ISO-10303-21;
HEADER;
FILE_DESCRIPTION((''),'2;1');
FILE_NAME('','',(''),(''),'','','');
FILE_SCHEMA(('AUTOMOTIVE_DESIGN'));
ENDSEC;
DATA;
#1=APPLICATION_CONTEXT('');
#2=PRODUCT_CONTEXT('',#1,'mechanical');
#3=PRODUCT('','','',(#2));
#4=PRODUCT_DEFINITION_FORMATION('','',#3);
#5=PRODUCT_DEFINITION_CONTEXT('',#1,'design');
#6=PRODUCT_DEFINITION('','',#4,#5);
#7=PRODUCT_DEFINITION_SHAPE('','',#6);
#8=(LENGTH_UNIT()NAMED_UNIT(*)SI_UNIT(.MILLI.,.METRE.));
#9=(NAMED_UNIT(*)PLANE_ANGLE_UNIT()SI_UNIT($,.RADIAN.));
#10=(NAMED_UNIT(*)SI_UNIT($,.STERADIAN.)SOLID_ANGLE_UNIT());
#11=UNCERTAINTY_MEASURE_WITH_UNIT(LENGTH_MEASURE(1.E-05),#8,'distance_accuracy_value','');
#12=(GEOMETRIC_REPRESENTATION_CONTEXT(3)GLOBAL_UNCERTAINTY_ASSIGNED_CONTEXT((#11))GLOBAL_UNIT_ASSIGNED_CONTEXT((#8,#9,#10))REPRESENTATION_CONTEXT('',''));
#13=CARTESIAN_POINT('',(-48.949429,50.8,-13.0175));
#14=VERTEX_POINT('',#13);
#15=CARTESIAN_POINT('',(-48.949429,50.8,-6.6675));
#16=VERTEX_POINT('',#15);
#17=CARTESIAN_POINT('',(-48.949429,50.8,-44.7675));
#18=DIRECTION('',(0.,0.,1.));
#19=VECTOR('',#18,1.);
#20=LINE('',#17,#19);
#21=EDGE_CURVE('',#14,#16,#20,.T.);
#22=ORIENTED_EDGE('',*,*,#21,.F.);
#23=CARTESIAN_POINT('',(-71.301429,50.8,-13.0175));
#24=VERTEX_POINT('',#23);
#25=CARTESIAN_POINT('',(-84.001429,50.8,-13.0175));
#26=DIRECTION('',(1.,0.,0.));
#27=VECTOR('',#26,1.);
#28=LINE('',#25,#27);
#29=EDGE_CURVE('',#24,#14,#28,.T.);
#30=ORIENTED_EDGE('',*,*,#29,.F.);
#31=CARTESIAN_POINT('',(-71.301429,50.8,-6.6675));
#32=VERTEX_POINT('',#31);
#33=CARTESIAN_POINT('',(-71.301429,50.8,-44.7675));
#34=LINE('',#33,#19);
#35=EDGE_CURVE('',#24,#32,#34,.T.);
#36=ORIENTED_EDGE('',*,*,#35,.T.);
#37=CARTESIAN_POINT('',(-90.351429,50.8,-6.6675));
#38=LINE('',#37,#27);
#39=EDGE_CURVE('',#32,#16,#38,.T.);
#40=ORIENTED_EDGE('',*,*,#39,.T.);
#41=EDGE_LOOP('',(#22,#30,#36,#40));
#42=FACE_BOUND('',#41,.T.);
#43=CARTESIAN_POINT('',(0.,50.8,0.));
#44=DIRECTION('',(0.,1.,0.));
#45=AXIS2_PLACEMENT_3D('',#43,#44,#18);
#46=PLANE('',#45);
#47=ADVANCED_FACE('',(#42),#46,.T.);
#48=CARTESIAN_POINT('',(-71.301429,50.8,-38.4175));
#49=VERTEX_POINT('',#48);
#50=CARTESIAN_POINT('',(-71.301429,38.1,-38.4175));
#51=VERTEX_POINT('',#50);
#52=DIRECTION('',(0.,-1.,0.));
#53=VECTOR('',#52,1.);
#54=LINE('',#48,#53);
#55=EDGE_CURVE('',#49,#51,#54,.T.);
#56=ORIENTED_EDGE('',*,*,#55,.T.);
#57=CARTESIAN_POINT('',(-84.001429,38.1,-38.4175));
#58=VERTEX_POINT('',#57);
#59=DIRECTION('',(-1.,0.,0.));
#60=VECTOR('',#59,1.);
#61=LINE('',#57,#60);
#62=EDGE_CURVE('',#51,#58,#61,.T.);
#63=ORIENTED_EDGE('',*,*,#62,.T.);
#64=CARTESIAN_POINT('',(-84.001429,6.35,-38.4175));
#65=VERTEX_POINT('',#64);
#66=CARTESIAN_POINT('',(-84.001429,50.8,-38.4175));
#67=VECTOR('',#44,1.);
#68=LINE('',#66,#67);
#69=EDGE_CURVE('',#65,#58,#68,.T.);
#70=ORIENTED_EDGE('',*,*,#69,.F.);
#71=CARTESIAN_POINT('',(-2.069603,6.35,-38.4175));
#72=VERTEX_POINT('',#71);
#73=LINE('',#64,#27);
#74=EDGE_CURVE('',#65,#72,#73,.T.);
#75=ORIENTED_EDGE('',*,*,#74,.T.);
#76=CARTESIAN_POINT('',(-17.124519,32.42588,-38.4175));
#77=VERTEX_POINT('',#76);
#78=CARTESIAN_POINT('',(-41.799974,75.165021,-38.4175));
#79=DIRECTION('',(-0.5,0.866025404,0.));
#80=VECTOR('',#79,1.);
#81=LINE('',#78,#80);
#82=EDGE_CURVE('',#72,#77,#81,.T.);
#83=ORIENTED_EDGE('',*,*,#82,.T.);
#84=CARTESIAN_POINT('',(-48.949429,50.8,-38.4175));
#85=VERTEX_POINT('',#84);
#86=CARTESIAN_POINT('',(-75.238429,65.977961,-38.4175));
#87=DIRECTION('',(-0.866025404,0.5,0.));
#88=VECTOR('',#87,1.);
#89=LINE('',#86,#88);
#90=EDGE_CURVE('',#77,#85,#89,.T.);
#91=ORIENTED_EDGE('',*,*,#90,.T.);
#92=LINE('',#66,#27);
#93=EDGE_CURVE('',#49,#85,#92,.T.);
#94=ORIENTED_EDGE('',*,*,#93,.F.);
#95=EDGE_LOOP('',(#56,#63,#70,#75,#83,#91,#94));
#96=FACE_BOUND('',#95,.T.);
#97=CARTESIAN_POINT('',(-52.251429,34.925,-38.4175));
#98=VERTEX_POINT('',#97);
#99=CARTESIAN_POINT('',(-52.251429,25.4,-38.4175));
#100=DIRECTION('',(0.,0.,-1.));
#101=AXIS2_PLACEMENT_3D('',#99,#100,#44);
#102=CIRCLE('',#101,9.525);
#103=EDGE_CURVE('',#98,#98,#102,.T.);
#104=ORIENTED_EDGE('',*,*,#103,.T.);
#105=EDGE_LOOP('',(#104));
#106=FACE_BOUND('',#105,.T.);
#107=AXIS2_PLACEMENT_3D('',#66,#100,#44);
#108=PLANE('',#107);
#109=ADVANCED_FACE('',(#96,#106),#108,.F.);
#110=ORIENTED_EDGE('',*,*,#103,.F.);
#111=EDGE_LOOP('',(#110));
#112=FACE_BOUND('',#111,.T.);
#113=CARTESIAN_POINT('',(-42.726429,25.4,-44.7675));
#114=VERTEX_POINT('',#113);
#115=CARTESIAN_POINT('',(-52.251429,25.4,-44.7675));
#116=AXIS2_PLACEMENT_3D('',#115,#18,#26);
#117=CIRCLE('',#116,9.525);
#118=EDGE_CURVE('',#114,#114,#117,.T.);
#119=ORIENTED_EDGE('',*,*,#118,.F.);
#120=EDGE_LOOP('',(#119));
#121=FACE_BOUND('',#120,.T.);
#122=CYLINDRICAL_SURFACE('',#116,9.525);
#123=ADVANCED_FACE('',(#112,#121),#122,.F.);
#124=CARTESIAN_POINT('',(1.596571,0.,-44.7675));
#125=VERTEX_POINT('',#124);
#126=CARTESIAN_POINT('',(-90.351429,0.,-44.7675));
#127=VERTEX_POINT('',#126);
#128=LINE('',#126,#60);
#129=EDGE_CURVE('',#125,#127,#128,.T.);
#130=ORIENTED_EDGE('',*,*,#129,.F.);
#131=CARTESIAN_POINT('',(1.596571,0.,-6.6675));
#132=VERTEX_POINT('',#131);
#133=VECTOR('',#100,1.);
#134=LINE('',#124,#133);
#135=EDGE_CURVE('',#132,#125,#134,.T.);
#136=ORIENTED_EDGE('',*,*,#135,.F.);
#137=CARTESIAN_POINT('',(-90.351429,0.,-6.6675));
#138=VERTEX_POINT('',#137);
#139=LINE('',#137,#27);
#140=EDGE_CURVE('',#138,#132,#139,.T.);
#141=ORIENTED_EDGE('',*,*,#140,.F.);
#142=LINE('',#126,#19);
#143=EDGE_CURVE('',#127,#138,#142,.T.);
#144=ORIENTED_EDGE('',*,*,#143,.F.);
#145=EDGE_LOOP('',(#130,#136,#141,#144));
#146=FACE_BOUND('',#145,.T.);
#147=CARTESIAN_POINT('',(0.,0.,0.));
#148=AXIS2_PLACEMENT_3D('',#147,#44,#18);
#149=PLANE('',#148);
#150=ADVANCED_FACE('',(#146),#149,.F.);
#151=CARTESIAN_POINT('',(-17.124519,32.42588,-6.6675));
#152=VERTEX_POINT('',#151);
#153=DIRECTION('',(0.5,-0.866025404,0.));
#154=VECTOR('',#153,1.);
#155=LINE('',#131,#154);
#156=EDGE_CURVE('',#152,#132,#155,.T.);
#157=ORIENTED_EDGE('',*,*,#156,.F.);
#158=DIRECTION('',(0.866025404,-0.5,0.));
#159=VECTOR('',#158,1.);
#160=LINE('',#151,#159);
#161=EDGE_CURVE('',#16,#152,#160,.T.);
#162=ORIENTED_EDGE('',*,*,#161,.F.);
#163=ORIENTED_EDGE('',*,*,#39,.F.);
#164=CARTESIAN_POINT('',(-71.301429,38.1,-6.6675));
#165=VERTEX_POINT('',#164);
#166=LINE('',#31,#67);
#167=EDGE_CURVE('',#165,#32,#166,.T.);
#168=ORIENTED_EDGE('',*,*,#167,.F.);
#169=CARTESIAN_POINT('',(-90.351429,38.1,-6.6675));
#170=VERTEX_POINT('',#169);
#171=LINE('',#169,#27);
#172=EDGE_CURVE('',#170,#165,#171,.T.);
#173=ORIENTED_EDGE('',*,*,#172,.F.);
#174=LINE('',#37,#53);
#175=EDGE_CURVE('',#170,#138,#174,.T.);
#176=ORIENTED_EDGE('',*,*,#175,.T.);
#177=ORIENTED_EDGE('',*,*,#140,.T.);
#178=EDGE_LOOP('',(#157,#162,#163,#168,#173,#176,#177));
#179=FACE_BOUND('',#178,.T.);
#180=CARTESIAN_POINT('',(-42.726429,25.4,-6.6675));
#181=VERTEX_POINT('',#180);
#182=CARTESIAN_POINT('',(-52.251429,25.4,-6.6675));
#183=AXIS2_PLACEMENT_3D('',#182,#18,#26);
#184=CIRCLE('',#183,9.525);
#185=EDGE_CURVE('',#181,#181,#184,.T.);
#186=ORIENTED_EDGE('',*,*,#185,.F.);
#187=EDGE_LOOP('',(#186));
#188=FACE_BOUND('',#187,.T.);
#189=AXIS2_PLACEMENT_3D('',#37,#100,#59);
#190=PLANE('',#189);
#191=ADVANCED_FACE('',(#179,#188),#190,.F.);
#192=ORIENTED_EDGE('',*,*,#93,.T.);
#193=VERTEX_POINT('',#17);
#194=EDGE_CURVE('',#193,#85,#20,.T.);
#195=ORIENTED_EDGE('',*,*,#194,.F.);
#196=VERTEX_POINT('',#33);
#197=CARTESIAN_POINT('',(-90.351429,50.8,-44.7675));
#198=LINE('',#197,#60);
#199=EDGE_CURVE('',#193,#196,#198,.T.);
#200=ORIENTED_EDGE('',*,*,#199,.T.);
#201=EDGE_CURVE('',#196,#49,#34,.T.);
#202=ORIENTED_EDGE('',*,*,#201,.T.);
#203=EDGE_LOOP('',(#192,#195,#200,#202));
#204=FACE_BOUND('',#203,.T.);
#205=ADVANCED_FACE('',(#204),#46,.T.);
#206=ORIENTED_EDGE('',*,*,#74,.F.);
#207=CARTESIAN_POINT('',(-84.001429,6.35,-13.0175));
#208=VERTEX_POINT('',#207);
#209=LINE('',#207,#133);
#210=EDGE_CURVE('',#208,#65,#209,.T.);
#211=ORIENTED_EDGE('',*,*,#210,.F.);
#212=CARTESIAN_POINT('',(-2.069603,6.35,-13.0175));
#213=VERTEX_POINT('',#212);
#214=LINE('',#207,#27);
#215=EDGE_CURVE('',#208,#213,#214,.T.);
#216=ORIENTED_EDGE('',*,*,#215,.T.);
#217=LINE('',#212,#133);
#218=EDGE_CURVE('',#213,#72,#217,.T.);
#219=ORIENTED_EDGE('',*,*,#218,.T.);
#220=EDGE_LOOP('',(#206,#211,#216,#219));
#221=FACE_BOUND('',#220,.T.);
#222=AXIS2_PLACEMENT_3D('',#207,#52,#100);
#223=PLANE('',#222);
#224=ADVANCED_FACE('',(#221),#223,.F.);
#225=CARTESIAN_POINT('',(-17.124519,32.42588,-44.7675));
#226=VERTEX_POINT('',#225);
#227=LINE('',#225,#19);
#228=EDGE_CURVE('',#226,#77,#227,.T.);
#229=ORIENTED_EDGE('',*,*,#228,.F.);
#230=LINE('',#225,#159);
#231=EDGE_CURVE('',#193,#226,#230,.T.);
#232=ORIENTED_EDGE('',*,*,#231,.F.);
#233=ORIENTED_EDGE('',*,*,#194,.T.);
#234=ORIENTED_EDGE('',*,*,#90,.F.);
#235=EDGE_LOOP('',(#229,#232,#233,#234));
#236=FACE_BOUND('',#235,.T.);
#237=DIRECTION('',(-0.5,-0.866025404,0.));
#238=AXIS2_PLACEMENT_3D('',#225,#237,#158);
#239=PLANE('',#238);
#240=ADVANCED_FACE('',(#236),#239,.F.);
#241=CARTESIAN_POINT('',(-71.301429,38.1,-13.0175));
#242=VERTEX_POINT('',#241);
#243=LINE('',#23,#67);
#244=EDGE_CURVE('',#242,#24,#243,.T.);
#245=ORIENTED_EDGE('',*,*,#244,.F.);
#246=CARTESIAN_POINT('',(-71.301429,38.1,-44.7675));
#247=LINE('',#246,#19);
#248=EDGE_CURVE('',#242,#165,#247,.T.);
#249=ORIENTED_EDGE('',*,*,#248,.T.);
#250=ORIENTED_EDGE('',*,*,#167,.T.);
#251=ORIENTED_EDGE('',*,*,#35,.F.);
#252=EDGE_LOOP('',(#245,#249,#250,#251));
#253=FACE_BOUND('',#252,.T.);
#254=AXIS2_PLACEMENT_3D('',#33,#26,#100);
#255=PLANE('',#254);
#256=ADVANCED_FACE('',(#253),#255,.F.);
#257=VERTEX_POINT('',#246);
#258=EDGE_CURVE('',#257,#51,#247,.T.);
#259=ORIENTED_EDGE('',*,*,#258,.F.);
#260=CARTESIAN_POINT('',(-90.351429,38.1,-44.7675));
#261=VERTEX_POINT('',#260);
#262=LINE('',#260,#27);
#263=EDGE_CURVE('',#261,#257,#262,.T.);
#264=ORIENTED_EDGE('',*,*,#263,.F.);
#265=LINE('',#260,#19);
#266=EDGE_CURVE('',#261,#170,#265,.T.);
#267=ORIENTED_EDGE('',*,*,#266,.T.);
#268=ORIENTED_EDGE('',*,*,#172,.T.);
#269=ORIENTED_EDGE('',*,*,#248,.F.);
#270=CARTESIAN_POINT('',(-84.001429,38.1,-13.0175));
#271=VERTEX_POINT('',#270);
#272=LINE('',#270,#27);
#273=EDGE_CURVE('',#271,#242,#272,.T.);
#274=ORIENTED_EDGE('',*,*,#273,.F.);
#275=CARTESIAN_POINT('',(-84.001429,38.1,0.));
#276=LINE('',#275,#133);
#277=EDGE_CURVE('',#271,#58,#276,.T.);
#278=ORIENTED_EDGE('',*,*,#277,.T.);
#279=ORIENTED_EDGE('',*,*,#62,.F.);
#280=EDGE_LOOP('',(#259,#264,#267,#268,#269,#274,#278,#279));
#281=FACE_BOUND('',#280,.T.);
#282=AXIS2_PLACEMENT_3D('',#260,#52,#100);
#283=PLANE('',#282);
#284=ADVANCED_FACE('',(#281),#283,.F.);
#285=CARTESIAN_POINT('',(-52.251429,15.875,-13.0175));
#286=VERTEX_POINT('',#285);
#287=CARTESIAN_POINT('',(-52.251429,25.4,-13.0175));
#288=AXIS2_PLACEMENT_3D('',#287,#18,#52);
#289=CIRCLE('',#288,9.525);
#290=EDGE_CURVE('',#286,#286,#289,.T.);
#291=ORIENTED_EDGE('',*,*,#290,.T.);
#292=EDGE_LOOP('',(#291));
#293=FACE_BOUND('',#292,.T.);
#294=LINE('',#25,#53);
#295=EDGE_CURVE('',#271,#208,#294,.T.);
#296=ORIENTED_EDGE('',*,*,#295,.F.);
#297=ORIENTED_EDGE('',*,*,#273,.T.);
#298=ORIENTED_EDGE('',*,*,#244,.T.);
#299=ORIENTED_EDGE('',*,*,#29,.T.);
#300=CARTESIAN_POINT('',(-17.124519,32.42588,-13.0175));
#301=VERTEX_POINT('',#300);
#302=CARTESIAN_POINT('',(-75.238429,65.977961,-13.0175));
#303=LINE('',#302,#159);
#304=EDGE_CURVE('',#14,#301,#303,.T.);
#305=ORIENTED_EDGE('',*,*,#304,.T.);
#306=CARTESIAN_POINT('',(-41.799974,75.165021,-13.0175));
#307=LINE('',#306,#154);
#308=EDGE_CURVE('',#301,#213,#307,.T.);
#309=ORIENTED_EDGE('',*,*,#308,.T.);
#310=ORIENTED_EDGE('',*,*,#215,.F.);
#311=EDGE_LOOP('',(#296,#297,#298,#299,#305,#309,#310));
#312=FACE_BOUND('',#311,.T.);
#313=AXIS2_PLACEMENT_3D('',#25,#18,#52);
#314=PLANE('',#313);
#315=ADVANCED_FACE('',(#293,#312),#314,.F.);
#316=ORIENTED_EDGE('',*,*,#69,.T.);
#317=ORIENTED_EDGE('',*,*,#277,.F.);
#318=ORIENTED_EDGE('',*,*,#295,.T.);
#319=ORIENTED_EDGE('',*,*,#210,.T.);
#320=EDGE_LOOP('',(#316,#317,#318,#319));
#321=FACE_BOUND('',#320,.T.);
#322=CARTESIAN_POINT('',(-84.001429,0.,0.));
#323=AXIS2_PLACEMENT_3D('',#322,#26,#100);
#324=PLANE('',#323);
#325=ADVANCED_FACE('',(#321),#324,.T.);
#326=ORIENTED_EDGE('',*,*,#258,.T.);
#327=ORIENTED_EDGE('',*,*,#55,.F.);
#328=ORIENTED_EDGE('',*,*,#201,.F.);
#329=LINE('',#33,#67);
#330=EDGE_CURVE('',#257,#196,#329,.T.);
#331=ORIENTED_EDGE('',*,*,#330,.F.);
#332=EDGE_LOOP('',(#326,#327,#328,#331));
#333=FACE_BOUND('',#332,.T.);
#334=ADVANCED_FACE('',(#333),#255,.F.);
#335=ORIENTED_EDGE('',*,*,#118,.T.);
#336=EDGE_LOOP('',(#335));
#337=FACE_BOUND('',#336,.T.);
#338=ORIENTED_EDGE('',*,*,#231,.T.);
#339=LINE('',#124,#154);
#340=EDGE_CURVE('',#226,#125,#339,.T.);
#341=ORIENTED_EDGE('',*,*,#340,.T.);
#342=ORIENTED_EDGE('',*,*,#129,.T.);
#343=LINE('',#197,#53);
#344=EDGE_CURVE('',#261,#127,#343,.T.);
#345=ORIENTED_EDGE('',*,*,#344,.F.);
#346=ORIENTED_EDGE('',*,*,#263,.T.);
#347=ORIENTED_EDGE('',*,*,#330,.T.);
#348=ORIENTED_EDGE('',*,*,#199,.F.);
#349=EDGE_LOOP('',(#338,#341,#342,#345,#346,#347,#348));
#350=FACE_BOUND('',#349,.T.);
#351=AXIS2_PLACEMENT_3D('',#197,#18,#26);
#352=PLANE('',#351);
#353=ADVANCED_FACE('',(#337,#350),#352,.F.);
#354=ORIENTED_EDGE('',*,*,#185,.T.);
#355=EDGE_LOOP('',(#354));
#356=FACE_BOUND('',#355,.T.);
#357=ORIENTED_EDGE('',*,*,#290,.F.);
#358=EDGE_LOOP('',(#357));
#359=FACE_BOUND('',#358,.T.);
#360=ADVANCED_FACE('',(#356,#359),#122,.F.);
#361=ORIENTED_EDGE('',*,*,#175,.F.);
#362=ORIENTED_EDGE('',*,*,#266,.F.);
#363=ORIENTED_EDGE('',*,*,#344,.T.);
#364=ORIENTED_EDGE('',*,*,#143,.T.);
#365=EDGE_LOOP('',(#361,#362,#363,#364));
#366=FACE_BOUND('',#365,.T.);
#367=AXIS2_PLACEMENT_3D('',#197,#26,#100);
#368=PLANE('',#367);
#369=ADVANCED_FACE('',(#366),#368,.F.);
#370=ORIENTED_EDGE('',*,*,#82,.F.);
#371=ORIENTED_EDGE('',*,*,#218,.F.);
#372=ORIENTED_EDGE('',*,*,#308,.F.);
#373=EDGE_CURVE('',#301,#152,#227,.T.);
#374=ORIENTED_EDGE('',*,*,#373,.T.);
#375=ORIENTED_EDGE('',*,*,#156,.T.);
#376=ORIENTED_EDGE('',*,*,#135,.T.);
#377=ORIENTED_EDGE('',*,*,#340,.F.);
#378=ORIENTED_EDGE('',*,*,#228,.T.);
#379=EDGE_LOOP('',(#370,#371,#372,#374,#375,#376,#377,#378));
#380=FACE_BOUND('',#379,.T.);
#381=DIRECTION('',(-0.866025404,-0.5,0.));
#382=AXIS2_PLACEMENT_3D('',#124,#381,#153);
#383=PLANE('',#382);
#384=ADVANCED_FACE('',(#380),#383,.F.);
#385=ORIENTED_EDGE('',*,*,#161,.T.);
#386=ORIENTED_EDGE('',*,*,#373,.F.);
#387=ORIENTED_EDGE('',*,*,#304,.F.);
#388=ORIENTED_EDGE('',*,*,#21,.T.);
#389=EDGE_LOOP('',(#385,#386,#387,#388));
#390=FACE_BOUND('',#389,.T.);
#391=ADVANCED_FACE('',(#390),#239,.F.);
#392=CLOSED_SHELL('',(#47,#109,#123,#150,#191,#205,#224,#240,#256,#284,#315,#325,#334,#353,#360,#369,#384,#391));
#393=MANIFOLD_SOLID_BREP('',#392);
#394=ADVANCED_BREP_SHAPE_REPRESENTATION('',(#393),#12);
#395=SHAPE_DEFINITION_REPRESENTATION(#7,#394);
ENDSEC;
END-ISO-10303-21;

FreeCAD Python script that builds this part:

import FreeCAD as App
import Part
import Sketcher
Q = App.Units.Quantity


def add_polygon(sketch, points):
    """Adds a closed chain of lines whose ends are joined by coincident constraints."""
    first, n = sketch.GeometryCount, len(points)
    for a, b in zip(points, points[1:] + points[:1]):
        sketch.addGeometry(Part.LineSegment(App.Vector(*a, 0), App.Vector(*b, 0)), False)
    for i in range(n):
        sketch.addConstraint(Sketcher.Constraint("Coincident", first + i, 2, first + (i + 1) % n, 1))

doc = App.newDocument("Part")
params = doc.addObject("Spreadsheet::Sheet", "Params")
for row, (alias, value) in enumerate([
    ("sketch1_height", "1.5 in"),
    ("sketch1_width", "3.62 in"),
    ("pad1_length", "2 in"),
    ("sketch2_height", "1 in"),
    ("sketch2_width", "1.75 in"),
    ("pocket1_length", "3.37 in"),
    ("sketch3_height", "0.5 in"),
    ("sketch3_width", "0.75 in"),
    ("sketch4_height", "2 in"),
    ("sketch4_width", "1.99 in"),
    ("sketch5_diameter", "0.75 in"),
], start=1):
    params.set(f"A{row}", alias)
    params.set(f"B{row}", "=" + value)
    params.setAlias(f"B{row}", alias)

body = doc.addObject("PartDesign::Body", "Body")

sketch1 = doc.addObject("Sketcher::SketchObject", "Sketch")
body.addObject(sketch1)
sketch1.AttachmentSupport = (doc.XZ_Plane, [""])
sketch1.MapMode = "FlatFace"
add_polygon(sketch1, [(-90, -45), (-90, -7), (2, -7), (2, -45)])
sketch1.addConstraint([
    Sketcher.Constraint("Vertical", 0),
    Sketcher.Constraint("Horizontal", 1),
    Sketcher.Constraint("Vertical", 2),
    Sketcher.Constraint("Horizontal", 3),
    Sketcher.Constraint("DistanceY", 0, 1, 0, 2, Q("1.5 in")),
    Sketcher.Constraint("DistanceX", 1, 1, 1, 2, Q("3.62 in")),
    Sketcher.Constraint("DistanceY", 0, 2, -1, 1, Q("0.2625 in")),
    Sketcher.Constraint("DistanceX", 0, 2, -1, 1, 90.351429),
])
sketch1.setExpression("Constraints[8]", "Params.sketch1_height")
sketch1.setExpression("Constraints[9]", "Params.sketch1_width")
pad1 = doc.addObject("PartDesign::Pad", "Pad")
body.addObject(pad1)
pad1.Profile = sketch1
pad1.setExpression("Length", "Params.pad1_length")
pad1.Reversed = True

sketch2 = doc.addObject("Sketcher::SketchObject", "Sketch001")
body.addObject(sketch2)
sketch2.AttachmentSupport = (doc.YZ_Plane, [""])
sketch2.MapMode = "FlatFace"
sketch2.AttachmentOffset = App.Placement(App.Vector(0, 0, 1.596571), App.Rotation())
add_polygon(sketch2, [(51, -13), (6, -13), (6, -38), (51, -38)])
sketch2.addConstraint([
    Sketcher.Constraint("Horizontal", 0),
    Sketcher.Constraint("Vertical", 1),
    Sketcher.Constraint("Horizontal", 2),
    Sketcher.Constraint("Vertical", 3),
    Sketcher.Constraint("DistanceY", 1, 2, 1, 1, Q("1 in")),
    Sketcher.Constraint("DistanceX", -1, 1, 2, 2, Q("2 in")),
    Sketcher.Constraint("DistanceX", 0, 2, 0, 1, Q("1.75 in")),
    Sketcher.Constraint("DistanceY", 0, 2, -1, 1, Q("0.5125 in")),
])
sketch2.setExpression("Constraints[8]", "Params.sketch2_height")
sketch2.setExpression("Constraints[10]", "Params.sketch2_width")
pocket1 = doc.addObject("PartDesign::Pocket", "Pocket")
body.addObject(pocket1)
pocket1.Profile = sketch2
pocket1.setExpression("Length", "Params.pocket1_length")

sketch3 = doc.addObject("Sketcher::SketchObject", "Sketch002")
body.addObject(sketch3)
sketch3.AttachmentSupport = (doc.XY_Plane, [""])
sketch3.MapMode = "FlatFace"
sketch3.AttachmentOffset = App.Placement(App.Vector(0, 0, -0.2625 * 25.4), App.Rotation())
add_polygon(sketch3, [(-90, 51), (-90, 38), (-71, 38), (-71, 51)])
sketch3.addConstraint([
    Sketcher.Constraint("Vertical", 0),
    Sketcher.Constraint("Horizontal", 1),
    Sketcher.Constraint("Vertical", 2),
    Sketcher.Constraint("Horizontal", 3),
    Sketcher.Constraint("DistanceY", 0, 2, 0, 1, Q("0.5 in")),
    Sketcher.Constraint("DistanceY", -1, 1, 2, 2, Q("2 in")),
    Sketcher.Constraint("DistanceX", 1, 1, 1, 2, Q("0.75 in")),
    Sketcher.Constraint("DistanceX", 0, 2, -1, 1, 90.351429),
])
sketch3.setExpression("Constraints[8]", "Params.sketch3_height")
sketch3.setExpression("Constraints[10]", "Params.sketch3_width")
pocket2 = doc.addObject("PartDesign::Pocket", "Pocket001")
body.addObject(pocket2)
pocket2.Profile = sketch3
pocket2.Type = "ThroughAll"

sketch4 = doc.addObject("Sketcher::SketchObject", "Sketch003")
body.addObject(sketch4)
sketch4.AttachmentSupport = (doc.XY_Plane, [""])
sketch4.MapMode = "FlatFace"
sketch4.AttachmentOffset = App.Placement(App.Vector(0, 0, -0.2625 * 25.4), App.Rotation())
add_polygon(sketch4, [(-17, 32), (2, 0), (2, 51), (-49, 51)])
sketch4.addConstraint([
    Sketcher.Constraint("Vertical", 1),
    Sketcher.Constraint("Horizontal", 2),
    Sketcher.Constraint("PointOnObject", 0, 2, -1),
    Sketcher.Constraint("DistanceY", 1, 1, 1, 2, Q("2 in")),
    Sketcher.Constraint("Angle", 0, Q("-60 deg")),
    Sketcher.Constraint("Angle", 3, Q("-30 deg")),
    Sketcher.Constraint("DistanceX", 2, 2, 2, 1, Q("1.99 in")),
    Sketcher.Constraint("DistanceX", -1, 1, 0, 2, 1.596571),
])
sketch4.setExpression("Constraints[7]", "Params.sketch4_height")
sketch4.setExpression("Constraints[10]", "Params.sketch4_width")
pocket3 = doc.addObject("PartDesign::Pocket", "Pocket002")
body.addObject(pocket3)
pocket3.Profile = sketch4
pocket3.Type = "ThroughAll"

sketch5 = doc.addObject("Sketcher::SketchObject", "Sketch004")
body.addObject(sketch5)
sketch5.AttachmentSupport = (doc.XY_Plane, [""])
sketch5.MapMode = "FlatFace"
sketch5.AttachmentOffset = App.Placement(App.Vector(0, 0, -0.2625 * 25.4), App.Rotation())
sketch5.addGeometry(Part.Circle(App.Vector(-52, 25, 0), App.Vector(0, 0, 1), 10), False)
sketch5.addConstraint([
    Sketcher.Constraint("Diameter", 0, Q("0.75 in")),
    Sketcher.Constraint("DistanceY", -1, 1, 0, 3, Q("1 in")),
    Sketcher.Constraint("DistanceX", 0, 3, -1, 1, 52.251429),
])
sketch5.setExpression("Constraints[0]", "Params.sketch5_diameter")
pocket4 = doc.addObject("PartDesign::Pocket", "Pocket003")
body.addObject(pocket4)
pocket4.Profile = sketch5
pocket4.Type = "ThroughAll"

doc.recompute()
